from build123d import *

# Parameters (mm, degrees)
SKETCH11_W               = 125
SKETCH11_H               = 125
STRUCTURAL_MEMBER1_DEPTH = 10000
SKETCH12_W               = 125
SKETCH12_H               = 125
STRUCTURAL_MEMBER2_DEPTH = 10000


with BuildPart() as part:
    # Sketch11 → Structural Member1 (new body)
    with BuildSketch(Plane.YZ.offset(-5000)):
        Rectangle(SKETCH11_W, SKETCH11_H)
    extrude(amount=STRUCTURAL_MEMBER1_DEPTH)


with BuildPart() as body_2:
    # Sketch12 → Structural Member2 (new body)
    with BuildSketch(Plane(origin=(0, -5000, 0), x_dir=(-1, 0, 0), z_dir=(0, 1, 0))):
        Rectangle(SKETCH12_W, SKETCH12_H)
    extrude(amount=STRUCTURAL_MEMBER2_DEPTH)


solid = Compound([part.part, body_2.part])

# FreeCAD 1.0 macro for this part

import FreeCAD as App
import Part
import Sketcher

V = App.Vector


def add_polygon(sketch, points):
    """Adds a closed chain of lines whose ends are joined by coincident constraints."""
    first, n = sketch.GeometryCount, len(points)
    for a, b in zip(points, points[1:] + points[:1]):
        sketch.addGeometry(Part.LineSegment(App.Vector(*a, 0), App.Vector(*b, 0)), False)
    for i in range(n):
        sketch.addConstraint(Sketcher.Constraint("Coincident", first + i, 2, first + (i + 1) % n, 1))

doc = App.newDocument("Part")
body = doc.addObject("PartDesign::Body", "Body")

# Sketch on YZ plane
sketch1 = body.newObject("Sketcher::SketchObject", "Sketch")
sketch1.AttachmentSupport = (doc.getObject("YZ_Plane"), [""])
sketch1.MapMode = "FlatFace"
sketch1.AttachmentOffset = App.Placement(V(0, 0, -5000), App.Rotation())
add_polygon(sketch1, [(-62, 62), (-62, -62), (62, -62), (62, 62)])  # lines 0-3
sketch1.addConstraint(Sketcher.Constraint("Vertical", 0))
sketch1.addConstraint(Sketcher.Constraint("Horizontal", 1))
sketch1.addConstraint(Sketcher.Constraint("Vertical", 2))
sketch1.addConstraint(Sketcher.Constraint("Horizontal", 3))
sketch1.addConstraint(Sketcher.Constraint("Symmetric", 0, 2, 2, 2, -1, 1))
sketch1.addConstraint(Sketcher.Constraint("Equal", 3, 0))
sketch1.addConstraint(Sketcher.Constraint("DistanceX", 1, 1, 1, 2, 125.0))
pad1 = body.newObject("PartDesign::Pad", "Pad")
pad1.Profile = sketch1
pad1.Length = 10000
body2 = doc.addObject("PartDesign::Body", "Body001")

# Sketch on XZ plane
sketch2 = body2.newObject("Sketcher::SketchObject", "Sketch001")
sketch2.AttachmentSupport = (doc.getObject("XZ_Plane001"), [""])
sketch2.MapMode = "FlatFace"
sketch2.AttachmentOffset = App.Placement(V(0, 0, 5000), App.Rotation())
add_polygon(sketch2, [(62, 62), (62, -62), (-62, -62), (-62, 62)])  # lines 0-3
sketch2.addConstraint(Sketcher.Constraint("Vertical", 0))
sketch2.addConstraint(Sketcher.Constraint("Horizontal", 1))
sketch2.addConstraint(Sketcher.Constraint("Vertical", 2))
sketch2.addConstraint(Sketcher.Constraint("Horizontal", 3))
sketch2.addConstraint(Sketcher.Constraint("Symmetric", 0, 2, 2, 2, -1, 1))
sketch2.addConstraint(Sketcher.Constraint("Equal", 3, 0))
sketch2.addConstraint(Sketcher.Constraint("DistanceX", 1, 2, 1, 1, 125.0))
pad2 = body2.newObject("PartDesign::Pad", "Pad001")
pad2.Profile = sketch2
pad2.Length = 10000
pad2.Reversed = True

doc.recompute()
